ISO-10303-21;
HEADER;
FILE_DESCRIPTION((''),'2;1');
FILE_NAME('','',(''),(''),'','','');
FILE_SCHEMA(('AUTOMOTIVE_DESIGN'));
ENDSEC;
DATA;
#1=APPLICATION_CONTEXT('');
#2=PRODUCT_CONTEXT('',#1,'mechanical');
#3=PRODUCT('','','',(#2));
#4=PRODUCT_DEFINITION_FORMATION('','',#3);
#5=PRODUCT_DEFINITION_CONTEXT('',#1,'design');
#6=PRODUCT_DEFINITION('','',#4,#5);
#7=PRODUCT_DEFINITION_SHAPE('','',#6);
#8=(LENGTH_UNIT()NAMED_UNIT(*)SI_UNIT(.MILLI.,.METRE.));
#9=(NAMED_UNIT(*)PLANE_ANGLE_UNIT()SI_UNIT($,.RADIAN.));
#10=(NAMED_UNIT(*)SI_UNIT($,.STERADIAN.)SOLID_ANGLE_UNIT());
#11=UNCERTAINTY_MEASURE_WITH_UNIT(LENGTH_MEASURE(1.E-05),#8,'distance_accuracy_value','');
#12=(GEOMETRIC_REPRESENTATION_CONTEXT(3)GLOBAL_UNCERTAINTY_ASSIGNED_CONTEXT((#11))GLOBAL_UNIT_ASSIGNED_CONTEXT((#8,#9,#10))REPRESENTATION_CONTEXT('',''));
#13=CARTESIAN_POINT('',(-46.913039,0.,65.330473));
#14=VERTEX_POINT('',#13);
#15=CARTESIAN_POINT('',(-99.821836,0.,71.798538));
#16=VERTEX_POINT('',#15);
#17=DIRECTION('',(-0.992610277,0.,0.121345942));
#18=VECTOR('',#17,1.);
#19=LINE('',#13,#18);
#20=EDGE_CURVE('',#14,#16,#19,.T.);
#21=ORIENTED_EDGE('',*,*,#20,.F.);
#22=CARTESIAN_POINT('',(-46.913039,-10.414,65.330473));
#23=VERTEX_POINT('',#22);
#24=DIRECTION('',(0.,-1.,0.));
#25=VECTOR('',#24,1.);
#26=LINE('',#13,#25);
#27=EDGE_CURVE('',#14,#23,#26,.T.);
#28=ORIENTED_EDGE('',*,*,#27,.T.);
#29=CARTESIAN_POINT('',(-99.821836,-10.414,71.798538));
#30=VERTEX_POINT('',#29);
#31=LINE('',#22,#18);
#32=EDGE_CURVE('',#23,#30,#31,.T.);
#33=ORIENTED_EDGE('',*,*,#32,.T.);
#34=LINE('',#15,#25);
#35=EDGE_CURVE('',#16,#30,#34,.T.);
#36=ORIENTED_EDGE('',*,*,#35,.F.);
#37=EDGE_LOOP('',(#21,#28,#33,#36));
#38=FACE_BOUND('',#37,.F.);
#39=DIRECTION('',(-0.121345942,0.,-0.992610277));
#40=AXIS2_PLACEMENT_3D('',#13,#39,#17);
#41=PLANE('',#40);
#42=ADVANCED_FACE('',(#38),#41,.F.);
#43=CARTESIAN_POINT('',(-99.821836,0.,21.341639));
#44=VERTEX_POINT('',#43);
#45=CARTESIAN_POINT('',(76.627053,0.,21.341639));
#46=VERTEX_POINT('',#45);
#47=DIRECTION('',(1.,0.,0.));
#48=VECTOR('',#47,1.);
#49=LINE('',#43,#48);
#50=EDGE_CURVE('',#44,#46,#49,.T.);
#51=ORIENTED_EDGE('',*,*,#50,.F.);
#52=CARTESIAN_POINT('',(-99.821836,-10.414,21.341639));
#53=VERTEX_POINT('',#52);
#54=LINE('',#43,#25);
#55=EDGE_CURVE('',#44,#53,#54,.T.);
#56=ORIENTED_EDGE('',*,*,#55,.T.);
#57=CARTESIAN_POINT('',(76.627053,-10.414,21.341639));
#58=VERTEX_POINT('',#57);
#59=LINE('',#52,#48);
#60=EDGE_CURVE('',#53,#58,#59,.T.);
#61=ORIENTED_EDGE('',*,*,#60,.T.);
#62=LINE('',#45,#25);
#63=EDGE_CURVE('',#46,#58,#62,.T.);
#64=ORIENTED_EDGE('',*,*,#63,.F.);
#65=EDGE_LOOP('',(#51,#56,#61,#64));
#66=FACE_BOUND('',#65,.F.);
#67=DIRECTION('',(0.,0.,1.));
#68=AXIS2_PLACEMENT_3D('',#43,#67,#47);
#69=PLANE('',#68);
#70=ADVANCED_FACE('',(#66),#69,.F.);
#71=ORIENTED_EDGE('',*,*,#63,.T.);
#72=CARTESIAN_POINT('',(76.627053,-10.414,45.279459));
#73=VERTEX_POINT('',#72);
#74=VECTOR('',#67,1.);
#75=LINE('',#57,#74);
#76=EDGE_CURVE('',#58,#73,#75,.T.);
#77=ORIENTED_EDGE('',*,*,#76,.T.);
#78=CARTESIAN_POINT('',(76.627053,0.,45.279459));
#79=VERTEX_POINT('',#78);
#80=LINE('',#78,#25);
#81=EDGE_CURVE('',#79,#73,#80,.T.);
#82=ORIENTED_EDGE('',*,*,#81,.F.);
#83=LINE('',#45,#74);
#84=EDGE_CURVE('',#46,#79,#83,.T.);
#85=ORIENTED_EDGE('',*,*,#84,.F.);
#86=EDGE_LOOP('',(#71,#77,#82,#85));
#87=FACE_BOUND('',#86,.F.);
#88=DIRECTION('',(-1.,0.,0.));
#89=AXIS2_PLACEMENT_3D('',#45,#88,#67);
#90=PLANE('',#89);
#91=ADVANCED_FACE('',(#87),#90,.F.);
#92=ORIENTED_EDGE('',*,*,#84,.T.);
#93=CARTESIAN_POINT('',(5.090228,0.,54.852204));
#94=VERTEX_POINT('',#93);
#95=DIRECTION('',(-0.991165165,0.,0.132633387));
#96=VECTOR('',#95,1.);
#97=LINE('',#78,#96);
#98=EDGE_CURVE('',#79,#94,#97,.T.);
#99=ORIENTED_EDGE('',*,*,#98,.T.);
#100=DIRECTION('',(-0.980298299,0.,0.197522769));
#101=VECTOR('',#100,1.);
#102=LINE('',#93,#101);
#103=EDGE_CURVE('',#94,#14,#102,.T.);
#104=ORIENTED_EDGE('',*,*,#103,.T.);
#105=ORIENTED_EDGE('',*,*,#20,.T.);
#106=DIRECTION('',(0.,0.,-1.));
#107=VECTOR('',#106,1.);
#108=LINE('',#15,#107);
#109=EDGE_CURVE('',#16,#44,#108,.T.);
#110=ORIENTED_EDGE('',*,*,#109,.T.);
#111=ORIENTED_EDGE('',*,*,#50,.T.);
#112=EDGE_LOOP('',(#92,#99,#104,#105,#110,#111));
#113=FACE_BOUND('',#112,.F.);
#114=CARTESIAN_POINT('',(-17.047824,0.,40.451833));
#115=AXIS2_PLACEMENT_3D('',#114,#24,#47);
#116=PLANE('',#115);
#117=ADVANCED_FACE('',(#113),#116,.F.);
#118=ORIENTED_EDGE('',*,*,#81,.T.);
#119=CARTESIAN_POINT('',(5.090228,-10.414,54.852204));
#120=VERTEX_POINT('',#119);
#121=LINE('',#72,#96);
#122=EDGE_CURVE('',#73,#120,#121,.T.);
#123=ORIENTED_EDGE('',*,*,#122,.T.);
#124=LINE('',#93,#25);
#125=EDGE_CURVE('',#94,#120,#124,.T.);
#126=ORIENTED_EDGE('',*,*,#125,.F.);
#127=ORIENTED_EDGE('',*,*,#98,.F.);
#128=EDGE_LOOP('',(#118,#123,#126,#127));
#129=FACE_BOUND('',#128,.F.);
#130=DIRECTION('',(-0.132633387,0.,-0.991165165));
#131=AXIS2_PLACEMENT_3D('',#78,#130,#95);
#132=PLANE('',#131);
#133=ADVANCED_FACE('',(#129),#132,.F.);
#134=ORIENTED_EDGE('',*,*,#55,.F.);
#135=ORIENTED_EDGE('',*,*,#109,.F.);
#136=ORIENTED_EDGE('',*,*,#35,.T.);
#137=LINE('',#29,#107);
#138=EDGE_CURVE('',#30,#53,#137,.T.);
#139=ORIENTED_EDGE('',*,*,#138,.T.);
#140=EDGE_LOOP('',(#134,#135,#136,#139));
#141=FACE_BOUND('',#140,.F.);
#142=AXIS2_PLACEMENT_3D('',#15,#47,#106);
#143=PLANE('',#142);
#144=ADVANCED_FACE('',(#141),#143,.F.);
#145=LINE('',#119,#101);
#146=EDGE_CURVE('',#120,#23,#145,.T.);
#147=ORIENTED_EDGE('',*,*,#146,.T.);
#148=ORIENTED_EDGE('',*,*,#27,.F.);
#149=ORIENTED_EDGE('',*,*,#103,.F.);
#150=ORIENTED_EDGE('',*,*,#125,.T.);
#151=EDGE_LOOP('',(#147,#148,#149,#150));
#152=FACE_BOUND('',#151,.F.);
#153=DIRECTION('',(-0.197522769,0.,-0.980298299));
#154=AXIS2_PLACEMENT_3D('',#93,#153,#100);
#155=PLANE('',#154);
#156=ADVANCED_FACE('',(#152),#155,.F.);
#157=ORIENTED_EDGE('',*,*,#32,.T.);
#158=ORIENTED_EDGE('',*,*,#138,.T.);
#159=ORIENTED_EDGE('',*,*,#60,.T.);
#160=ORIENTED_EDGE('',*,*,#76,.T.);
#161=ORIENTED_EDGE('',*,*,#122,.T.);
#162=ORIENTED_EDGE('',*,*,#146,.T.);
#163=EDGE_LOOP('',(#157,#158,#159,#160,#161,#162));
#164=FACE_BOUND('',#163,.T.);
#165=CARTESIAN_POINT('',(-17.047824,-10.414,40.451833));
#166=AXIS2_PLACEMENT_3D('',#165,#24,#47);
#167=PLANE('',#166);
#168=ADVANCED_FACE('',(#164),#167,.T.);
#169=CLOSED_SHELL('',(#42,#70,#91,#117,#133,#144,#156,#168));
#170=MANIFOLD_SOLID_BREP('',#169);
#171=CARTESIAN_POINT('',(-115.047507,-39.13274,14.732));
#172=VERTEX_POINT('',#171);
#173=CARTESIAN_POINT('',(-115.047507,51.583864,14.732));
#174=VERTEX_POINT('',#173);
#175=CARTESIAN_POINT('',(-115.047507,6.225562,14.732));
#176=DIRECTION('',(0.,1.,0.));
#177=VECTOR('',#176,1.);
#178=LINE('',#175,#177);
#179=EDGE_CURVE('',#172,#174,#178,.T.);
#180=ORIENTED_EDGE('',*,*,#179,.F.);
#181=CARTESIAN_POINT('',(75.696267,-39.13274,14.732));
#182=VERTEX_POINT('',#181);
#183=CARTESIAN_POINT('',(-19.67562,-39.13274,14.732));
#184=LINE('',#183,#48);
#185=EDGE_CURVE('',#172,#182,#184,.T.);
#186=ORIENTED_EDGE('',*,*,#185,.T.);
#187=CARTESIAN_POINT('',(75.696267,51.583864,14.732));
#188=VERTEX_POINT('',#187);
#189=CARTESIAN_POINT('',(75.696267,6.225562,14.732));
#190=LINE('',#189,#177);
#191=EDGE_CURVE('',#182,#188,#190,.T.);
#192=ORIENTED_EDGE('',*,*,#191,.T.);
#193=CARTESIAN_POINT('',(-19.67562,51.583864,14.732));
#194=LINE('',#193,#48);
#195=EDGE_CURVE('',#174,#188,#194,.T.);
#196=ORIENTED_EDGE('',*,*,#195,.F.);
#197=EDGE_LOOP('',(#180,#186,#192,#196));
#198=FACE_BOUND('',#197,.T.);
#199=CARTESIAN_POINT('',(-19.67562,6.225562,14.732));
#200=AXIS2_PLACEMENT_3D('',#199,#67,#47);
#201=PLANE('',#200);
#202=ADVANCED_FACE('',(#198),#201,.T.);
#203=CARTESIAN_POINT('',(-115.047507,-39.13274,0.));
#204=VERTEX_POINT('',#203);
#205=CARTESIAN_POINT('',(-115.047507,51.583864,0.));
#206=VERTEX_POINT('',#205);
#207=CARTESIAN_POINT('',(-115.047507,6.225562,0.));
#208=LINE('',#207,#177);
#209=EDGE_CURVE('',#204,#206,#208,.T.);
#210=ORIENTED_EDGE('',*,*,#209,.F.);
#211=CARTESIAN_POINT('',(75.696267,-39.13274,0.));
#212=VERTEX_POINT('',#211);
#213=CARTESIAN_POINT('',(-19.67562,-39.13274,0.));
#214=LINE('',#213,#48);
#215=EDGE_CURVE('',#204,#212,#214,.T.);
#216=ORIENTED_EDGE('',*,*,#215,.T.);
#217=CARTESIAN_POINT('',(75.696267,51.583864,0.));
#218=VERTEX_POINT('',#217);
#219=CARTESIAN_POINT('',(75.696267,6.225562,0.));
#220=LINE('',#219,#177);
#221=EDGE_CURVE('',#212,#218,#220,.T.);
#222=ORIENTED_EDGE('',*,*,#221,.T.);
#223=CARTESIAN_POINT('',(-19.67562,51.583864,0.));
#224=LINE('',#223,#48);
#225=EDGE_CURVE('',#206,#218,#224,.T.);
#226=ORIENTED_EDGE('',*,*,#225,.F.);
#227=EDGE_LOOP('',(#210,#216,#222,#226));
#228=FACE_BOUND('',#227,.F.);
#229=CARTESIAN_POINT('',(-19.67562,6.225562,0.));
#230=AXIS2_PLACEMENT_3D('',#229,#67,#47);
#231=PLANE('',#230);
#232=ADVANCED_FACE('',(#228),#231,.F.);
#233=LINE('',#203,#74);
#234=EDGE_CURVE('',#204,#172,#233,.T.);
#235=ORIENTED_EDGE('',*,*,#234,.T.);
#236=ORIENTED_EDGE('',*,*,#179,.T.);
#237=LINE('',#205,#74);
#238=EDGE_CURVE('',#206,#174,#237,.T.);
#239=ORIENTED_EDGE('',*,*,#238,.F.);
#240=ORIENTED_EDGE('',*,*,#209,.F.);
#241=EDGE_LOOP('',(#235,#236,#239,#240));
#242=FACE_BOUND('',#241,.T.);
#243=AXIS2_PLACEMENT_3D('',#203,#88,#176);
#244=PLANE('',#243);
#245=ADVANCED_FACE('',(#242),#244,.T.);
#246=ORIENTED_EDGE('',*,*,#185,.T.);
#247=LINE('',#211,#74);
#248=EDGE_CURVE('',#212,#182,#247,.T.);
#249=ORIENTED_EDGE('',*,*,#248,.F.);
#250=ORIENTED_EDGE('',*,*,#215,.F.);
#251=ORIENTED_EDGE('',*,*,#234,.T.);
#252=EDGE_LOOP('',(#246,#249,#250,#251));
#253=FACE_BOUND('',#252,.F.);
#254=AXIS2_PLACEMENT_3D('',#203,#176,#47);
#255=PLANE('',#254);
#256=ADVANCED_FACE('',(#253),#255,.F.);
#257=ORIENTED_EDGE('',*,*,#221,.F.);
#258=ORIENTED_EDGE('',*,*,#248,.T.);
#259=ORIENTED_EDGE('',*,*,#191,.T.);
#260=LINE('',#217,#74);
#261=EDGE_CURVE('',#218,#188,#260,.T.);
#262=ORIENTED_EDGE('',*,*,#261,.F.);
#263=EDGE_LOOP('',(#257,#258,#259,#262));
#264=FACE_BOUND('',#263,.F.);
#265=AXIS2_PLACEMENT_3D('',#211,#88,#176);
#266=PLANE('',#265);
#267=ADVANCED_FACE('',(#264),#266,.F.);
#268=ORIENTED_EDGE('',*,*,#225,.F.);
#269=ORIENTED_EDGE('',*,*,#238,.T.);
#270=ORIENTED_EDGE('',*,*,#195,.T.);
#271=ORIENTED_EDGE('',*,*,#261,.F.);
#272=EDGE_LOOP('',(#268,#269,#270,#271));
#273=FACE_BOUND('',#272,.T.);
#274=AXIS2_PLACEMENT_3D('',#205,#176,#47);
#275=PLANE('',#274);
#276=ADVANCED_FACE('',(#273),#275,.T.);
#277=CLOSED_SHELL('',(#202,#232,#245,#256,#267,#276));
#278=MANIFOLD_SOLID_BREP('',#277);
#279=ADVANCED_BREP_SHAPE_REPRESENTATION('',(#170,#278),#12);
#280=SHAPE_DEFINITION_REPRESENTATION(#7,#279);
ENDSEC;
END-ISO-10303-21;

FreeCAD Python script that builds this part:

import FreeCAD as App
import Part
import Sketcher
Q = App.Units.Quantity

doc = App.newDocument("Part")
params = doc.addObject("Spreadsheet::Sheet", "Params")
for row, (alias, value) in enumerate([
    ("pad1_length", "0.58 in"),
    ("pad2_length", "0.41 in"),
], start=1):
    params.set(f"A{row}", alias)
    params.set(f"B{row}", "=" + value)
    params.setAlias(f"B{row}", alias)

body = doc.addObject("PartDesign::Body", "Body")

# Sketch on XY plane
sketch1 = body.newObject("Sketcher::SketchObject", "Sketch")
sketch1.AttachmentSupport = (doc.getObject("XY_Plane"), [""])
sketch1.MapMode = "FlatFace"
sketch1.addGeometry([
    Part.LineSegment(App.Vector(-115, 52, 0), App.Vector(-115, -39, 0)),
    Part.LineSegment(App.Vector(-115, -39, 0), App.Vector(76, -39, 0)),
    Part.LineSegment(App.Vector(76, -39, 0), App.Vector(76, 52, 0)),
    Part.LineSegment(App.Vector(76, 52, 0), App.Vector(-115, 52, 0)),
], False)
sketch1.addConstraint([
    Sketcher.Constraint("Coincident", 0, 2, 1, 1),
    Sketcher.Constraint("Coincident", 1, 2, 2, 1),
    Sketcher.Constraint("Coincident", 2, 2, 3, 1),
    Sketcher.Constraint("Coincident", 3, 2, 0, 1),
    Sketcher.Constraint("Vertical", 0),
    Sketcher.Constraint("Horizontal", 1),
    Sketcher.Constraint("Vertical", 2),
    Sketcher.Constraint("Horizontal", 3),
    Sketcher.Constraint("DistanceX", 1, 1, 1, 2, Q("190.743774 mm")),
    Sketcher.Constraint("DistanceY", 0, 2, 0, 1, Q("90.716604 mm")),
    Sketcher.Constraint("DistanceY", 0, 2, -1, 1, Q("39.13274 mm")),
    Sketcher.Constraint("DistanceX", 0, 2, -1, 1, Q("115.047507 mm")),
])
pad1 = body.newObject("PartDesign::Pad", "Pad")
pad1.Profile = sketch1
pad1.setExpression("Length", "Params.pad1_length")
body2 = doc.addObject("PartDesign::Body", "Body001")

# Sketch on XZ plane
sketch2 = body2.newObject("Sketcher::SketchObject", "Sketch001")
sketch2.AttachmentSupport = (doc.getObject("XZ_Plane001"), [""])
sketch2.MapMode = "FlatFace"
sketch2.addGeometry([
    Part.LineSegment(App.Vector(-100, 72, 0), App.Vector(-100, 21, 0)),  # 0
    Part.LineSegment(App.Vector(-100, 21, 0), App.Vector(77, 21, 0)),  # 1
    Part.LineSegment(App.Vector(77, 21, 0), App.Vector(77, 45, 0)),  # 2
    Part.LineSegment(App.Vector(77, 45, 0), App.Vector(5, 55, 0)),  # 3
    Part.LineSegment(App.Vector(5, 55, 0), App.Vector(-47, 65, 0)),  # 4
    Part.LineSegment(App.Vector(-47, 65, 0), App.Vector(-100, 72, 0)),  # 5
], False)
sketch2.addConstraint([
    Sketcher.Constraint("Coincident", 0, 2, 1, 1),
    Sketcher.Constraint("Coincident", 1, 2, 2, 1),
    Sketcher.Constraint("Coincident", 2, 2, 3, 1),
    Sketcher.Constraint("Coincident", 3, 2, 4, 1),
    Sketcher.Constraint("Coincident", 4, 2, 5, 1),
    Sketcher.Constraint("Coincident", 5, 2, 0, 1),
    Sketcher.Constraint("Vertical", 0),
    Sketcher.Constraint("Horizontal", 1),
    Sketcher.Constraint("Vertical", 2),
    Sketcher.Constraint("DistanceY", 0, 2, 0, 1, Q("50.456899 mm")),
    Sketcher.Constraint("DistanceX", 1, 1, 1, 2, Q("176.448889 mm")),
    Sketcher.Constraint("DistanceY", 2, 1, 2, 2, Q("23.93782 mm")),
    Sketcher.Constraint("Distance", 4, Q("53.048411 mm")),
    Sketcher.Constraint("Distance", 5, Q("53.302689 mm")),
    Sketcher.Constraint("DistanceY", -1, 1, 0, 2, Q("21.341639 mm")),
    Sketcher.Constraint("DistanceX", 4, 2, -1, 1, Q("46.913039 mm")),
    Sketcher.Constraint("DistanceY", 3, 2, 4, 2, Q("10.478269 mm")),
    Sketcher.Constraint("DistanceX", 4, 2, 2, 2, Q("123.540092 mm")),
])
pad2 = body2.newObject("PartDesign::Pad", "Pad001")
pad2.Profile = sketch2
pad2.setExpression("Length", "Params.pad2_length")

doc.recompute()
